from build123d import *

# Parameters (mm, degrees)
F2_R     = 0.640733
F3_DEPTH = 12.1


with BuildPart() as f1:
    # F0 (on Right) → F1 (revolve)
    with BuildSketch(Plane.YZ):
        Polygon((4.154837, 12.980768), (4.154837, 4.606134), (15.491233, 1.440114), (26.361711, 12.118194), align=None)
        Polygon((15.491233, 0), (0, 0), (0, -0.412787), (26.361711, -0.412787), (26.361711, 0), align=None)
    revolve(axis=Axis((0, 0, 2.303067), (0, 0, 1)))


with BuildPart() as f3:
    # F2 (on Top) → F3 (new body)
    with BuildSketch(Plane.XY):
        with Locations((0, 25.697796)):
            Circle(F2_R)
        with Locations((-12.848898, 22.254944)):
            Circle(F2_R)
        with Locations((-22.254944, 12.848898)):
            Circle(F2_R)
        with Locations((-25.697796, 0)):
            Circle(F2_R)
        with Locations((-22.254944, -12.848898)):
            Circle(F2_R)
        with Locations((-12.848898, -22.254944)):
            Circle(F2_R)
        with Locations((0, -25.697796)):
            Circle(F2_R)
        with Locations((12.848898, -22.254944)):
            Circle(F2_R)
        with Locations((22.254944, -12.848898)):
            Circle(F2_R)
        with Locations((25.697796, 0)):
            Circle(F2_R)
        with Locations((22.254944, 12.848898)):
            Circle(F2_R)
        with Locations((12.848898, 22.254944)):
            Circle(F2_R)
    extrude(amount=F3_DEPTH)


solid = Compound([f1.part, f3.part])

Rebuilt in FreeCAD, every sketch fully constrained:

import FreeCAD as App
import Part
import Sketcher
from FreeCAD import Vector


def add_polygon(sketch, points):
    """Adds a closed chain of lines whose ends are joined by coincident constraints."""
    first, n = sketch.GeometryCount, len(points)
    for a, b in zip(points, points[1:] + points[:1]):
        sketch.addGeometry(Part.LineSegment(App.Vector(*a, 0), App.Vector(*b, 0)), False)
    for i in range(n):
        sketch.addConstraint(Sketcher.Constraint("Coincident", first + i, 2, first + (i + 1) % n, 1))

doc = App.newDocument("Part")
body = doc.addObject("PartDesign::Body", "Body")
body.AllowCompound = True

# Sketch on YZ plane
sketch1 = body.newObject("Sketcher::SketchObject", "Sketch")
sketch1.AttachmentSupport = (doc.getObject("YZ_Plane"), [""])
sketch1.MapMode = "FlatFace"
add_polygon(sketch1, [(4.15, 12.98), (4.15, 4.61), (15.49, 1.44), (26.36, 12.12)])  # lines 0-3
add_polygon(sketch1, [(0, 0), (0, -0.41), (26.36, -0.41), (26.36, 0)])  # lines 4-7
sketch1.addConstraint(Sketcher.Constraint("Vertical", 0))
sketch1.addConstraint(Sketcher.Constraint("Vertical", 4))
sketch1.addConstraint(Sketcher.Constraint("Horizontal", 5))
sketch1.addConstraint(Sketcher.Constraint("Vertical", 6))
sketch1.addConstraint(Sketcher.Constraint("Horizontal", 7))
sketch1.addConstraint(Sketcher.Constraint("Coincident", 7, 2, -1, 1))
sketch1.addConstraint(Sketcher.Constraint("Vertical", 2, 2, 5, 2))
sketch1.addConstraint(Sketcher.Constraint("DistanceX", 5, 1, 5, 2, 26.361711))
sketch1.addConstraint(Sketcher.Constraint("DistanceY", 4, 2, 1, 2, 1.852901))
sketch1.addConstraint(Sketcher.Constraint("Distance", 2, 15.237739))
sketch1.addConstraint(Sketcher.Constraint("Distance", 3, 22.22362))
sketch1.addConstraint(Sketcher.Constraint("DistanceY", 0, 2, 0, 1, 8.374634))
sketch1.addConstraint(Sketcher.Constraint("DistanceY", 4, 2, 4, 1, 0.412787))
sketch1.addConstraint(Sketcher.Constraint("DistanceY", 1, 2, 0, 2, 3.16602))
sketch1.addConstraint(Sketcher.Constraint("DistanceY", 1, 2, 2, 2, 10.67808))
revolution = body.newObject("PartDesign::Revolution", "Revolution")
revolution.Profile = sketch1
revolution.ReferenceAxis = (sketch1, ["V_Axis"])
revolution.Angle = 360
body2 = doc.addObject("PartDesign::Body", "Body001")
body2.AllowCompound = True

# Sketch on XY plane
sketch2 = body2.newObject("Sketcher::SketchObject", "Sketch001")
sketch2.AttachmentSupport = (doc.getObject("XY_Plane001"), [""])
sketch2.MapMode = "FlatFace"
sketch2.addGeometry(Part.Circle(Vector(0, 25.7, 0), Vector(0, 0, 1), 0.6), False)
sketch2.addGeometry(Part.Circle(Vector(-12.8, 22.3, 0), Vector(0, 0, 1), 0.6), False)
sketch2.addGeometry(Part.Circle(Vector(-22.3, 12.8, 0), Vector(0, 0, 1), 0.6), False)
sketch2.addGeometry(Part.Circle(Vector(-25.7, 0, 0), Vector(0, 0, 1), 0.6), False)
sketch2.addGeometry(Part.Circle(Vector(-22.3, -12.8, 0), Vector(0, 0, 1), 0.6), False)
sketch2.addGeometry(Part.Circle(Vector(-12.8, -22.3, 0), Vector(0, 0, 1), 0.6), False)
sketch2.addGeometry(Part.Circle(Vector(0, -25.7, 0), Vector(0, 0, 1), 0.6), False)
sketch2.addGeometry(Part.Circle(Vector(12.8, -22.3, 0), Vector(0, 0, 1), 0.6), False)
sketch2.addGeometry(Part.Circle(Vector(22.3, -12.8, 0), Vector(0, 0, 1), 0.6), False)
sketch2.addGeometry(Part.Circle(Vector(25.7, 0, 0), Vector(0, 0, 1), 0.6), False)
sketch2.addGeometry(Part.Circle(Vector(22.3, 12.8, 0), Vector(0, 0, 1), 0.6), False)
sketch2.addGeometry(Part.Circle(Vector(12.8, 22.3, 0), Vector(0, 0, 1), 0.6), False)
sketch2.addConstraint(Sketcher.Constraint("Equal", 0, 1))
sketch2.addConstraint(Sketcher.Constraint("Equal", 1, 2))
sketch2.addConstraint(Sketcher.Constraint("Equal", 2, 3))
sketch2.addConstraint(Sketcher.Constraint("Equal", 3, 4))
sketch2.addConstraint(Sketcher.Constraint("Equal", 4, 5))
sketch2.addConstraint(Sketcher.Constraint("Equal", 5, 6))
sketch2.addConstraint(Sketcher.Constraint("Equal", 6, 7))
sketch2.addConstraint(Sketcher.Constraint("Equal", 7, 8))
sketch2.addConstraint(Sketcher.Constraint("Equal", 8, 9))
sketch2.addConstraint(Sketcher.Constraint("Equal", 9, 10))
sketch2.addConstraint(Sketcher.Constraint("Equal", 10, 11))
sketch2.addConstraint(Sketcher.Constraint("Symmetric", 0, 3, 6, 3, -1, 1))
sketch2.addConstraint(Sketcher.Constraint("Symmetric", 1, 3, 7, 3, -1, 1))
sketch2.addConstraint(Sketcher.Constraint("Symmetric", 2, 3, 8, 3, -1, 1))
sketch2.addConstraint(Sketcher.Constraint("Symmetric", 3, 3, 9, 3, -1, 1))
sketch2.addConstraint(Sketcher.Constraint("Symmetric", 4, 3, 10, 3, -1, 1))
sketch2.addConstraint(Sketcher.Constraint("Symmetric", 5, 3, 11, 3, -1, 1))
sketch2.addConstraint(Sketcher.Constraint("Symmetric", 5, 3, 7, 3, -2))
sketch2.addConstraint(Sketcher.Constraint("Symmetric", 4, 3, 8, 3, -2))
sketch2.addConstraint(Sketcher.Constraint("PointOnObject", 0, 3, -2))
sketch2.addConstraint(Sketcher.Constraint("PointOnObject", 3, 3, -1))
sketch2.addConstraint(Sketcher.Constraint("Diameter", 0, 1.281466))
sketch2.addConstraint(Sketcher.Constraint("DistanceY", 5, 3, 0, 3, 47.95274))
sketch2.addConstraint(Sketcher.Constraint("DistanceY", -1, 1, 0, 3, 25.697796))
sketch2.addConstraint(Sketcher.Constraint("DistanceX", 1, 3, -1, 1, 12.848898))
sketch2.addConstraint(Sketcher.Constraint("DistanceX", 2, 3, -1, 1, 22.254944))
sketch2.addConstraint(Sketcher.Constraint("DistanceY", -1, 1, 2, 3, 12.848898))
sketch2.addConstraint(Sketcher.Constraint("DistanceX", 3, 3, -1, 1, 25.697796))
pad1 = body2.newObject("PartDesign::Pad", "Pad")
pad1.Profile = sketch2
pad1.Length = 12.1

doc.recompute()
